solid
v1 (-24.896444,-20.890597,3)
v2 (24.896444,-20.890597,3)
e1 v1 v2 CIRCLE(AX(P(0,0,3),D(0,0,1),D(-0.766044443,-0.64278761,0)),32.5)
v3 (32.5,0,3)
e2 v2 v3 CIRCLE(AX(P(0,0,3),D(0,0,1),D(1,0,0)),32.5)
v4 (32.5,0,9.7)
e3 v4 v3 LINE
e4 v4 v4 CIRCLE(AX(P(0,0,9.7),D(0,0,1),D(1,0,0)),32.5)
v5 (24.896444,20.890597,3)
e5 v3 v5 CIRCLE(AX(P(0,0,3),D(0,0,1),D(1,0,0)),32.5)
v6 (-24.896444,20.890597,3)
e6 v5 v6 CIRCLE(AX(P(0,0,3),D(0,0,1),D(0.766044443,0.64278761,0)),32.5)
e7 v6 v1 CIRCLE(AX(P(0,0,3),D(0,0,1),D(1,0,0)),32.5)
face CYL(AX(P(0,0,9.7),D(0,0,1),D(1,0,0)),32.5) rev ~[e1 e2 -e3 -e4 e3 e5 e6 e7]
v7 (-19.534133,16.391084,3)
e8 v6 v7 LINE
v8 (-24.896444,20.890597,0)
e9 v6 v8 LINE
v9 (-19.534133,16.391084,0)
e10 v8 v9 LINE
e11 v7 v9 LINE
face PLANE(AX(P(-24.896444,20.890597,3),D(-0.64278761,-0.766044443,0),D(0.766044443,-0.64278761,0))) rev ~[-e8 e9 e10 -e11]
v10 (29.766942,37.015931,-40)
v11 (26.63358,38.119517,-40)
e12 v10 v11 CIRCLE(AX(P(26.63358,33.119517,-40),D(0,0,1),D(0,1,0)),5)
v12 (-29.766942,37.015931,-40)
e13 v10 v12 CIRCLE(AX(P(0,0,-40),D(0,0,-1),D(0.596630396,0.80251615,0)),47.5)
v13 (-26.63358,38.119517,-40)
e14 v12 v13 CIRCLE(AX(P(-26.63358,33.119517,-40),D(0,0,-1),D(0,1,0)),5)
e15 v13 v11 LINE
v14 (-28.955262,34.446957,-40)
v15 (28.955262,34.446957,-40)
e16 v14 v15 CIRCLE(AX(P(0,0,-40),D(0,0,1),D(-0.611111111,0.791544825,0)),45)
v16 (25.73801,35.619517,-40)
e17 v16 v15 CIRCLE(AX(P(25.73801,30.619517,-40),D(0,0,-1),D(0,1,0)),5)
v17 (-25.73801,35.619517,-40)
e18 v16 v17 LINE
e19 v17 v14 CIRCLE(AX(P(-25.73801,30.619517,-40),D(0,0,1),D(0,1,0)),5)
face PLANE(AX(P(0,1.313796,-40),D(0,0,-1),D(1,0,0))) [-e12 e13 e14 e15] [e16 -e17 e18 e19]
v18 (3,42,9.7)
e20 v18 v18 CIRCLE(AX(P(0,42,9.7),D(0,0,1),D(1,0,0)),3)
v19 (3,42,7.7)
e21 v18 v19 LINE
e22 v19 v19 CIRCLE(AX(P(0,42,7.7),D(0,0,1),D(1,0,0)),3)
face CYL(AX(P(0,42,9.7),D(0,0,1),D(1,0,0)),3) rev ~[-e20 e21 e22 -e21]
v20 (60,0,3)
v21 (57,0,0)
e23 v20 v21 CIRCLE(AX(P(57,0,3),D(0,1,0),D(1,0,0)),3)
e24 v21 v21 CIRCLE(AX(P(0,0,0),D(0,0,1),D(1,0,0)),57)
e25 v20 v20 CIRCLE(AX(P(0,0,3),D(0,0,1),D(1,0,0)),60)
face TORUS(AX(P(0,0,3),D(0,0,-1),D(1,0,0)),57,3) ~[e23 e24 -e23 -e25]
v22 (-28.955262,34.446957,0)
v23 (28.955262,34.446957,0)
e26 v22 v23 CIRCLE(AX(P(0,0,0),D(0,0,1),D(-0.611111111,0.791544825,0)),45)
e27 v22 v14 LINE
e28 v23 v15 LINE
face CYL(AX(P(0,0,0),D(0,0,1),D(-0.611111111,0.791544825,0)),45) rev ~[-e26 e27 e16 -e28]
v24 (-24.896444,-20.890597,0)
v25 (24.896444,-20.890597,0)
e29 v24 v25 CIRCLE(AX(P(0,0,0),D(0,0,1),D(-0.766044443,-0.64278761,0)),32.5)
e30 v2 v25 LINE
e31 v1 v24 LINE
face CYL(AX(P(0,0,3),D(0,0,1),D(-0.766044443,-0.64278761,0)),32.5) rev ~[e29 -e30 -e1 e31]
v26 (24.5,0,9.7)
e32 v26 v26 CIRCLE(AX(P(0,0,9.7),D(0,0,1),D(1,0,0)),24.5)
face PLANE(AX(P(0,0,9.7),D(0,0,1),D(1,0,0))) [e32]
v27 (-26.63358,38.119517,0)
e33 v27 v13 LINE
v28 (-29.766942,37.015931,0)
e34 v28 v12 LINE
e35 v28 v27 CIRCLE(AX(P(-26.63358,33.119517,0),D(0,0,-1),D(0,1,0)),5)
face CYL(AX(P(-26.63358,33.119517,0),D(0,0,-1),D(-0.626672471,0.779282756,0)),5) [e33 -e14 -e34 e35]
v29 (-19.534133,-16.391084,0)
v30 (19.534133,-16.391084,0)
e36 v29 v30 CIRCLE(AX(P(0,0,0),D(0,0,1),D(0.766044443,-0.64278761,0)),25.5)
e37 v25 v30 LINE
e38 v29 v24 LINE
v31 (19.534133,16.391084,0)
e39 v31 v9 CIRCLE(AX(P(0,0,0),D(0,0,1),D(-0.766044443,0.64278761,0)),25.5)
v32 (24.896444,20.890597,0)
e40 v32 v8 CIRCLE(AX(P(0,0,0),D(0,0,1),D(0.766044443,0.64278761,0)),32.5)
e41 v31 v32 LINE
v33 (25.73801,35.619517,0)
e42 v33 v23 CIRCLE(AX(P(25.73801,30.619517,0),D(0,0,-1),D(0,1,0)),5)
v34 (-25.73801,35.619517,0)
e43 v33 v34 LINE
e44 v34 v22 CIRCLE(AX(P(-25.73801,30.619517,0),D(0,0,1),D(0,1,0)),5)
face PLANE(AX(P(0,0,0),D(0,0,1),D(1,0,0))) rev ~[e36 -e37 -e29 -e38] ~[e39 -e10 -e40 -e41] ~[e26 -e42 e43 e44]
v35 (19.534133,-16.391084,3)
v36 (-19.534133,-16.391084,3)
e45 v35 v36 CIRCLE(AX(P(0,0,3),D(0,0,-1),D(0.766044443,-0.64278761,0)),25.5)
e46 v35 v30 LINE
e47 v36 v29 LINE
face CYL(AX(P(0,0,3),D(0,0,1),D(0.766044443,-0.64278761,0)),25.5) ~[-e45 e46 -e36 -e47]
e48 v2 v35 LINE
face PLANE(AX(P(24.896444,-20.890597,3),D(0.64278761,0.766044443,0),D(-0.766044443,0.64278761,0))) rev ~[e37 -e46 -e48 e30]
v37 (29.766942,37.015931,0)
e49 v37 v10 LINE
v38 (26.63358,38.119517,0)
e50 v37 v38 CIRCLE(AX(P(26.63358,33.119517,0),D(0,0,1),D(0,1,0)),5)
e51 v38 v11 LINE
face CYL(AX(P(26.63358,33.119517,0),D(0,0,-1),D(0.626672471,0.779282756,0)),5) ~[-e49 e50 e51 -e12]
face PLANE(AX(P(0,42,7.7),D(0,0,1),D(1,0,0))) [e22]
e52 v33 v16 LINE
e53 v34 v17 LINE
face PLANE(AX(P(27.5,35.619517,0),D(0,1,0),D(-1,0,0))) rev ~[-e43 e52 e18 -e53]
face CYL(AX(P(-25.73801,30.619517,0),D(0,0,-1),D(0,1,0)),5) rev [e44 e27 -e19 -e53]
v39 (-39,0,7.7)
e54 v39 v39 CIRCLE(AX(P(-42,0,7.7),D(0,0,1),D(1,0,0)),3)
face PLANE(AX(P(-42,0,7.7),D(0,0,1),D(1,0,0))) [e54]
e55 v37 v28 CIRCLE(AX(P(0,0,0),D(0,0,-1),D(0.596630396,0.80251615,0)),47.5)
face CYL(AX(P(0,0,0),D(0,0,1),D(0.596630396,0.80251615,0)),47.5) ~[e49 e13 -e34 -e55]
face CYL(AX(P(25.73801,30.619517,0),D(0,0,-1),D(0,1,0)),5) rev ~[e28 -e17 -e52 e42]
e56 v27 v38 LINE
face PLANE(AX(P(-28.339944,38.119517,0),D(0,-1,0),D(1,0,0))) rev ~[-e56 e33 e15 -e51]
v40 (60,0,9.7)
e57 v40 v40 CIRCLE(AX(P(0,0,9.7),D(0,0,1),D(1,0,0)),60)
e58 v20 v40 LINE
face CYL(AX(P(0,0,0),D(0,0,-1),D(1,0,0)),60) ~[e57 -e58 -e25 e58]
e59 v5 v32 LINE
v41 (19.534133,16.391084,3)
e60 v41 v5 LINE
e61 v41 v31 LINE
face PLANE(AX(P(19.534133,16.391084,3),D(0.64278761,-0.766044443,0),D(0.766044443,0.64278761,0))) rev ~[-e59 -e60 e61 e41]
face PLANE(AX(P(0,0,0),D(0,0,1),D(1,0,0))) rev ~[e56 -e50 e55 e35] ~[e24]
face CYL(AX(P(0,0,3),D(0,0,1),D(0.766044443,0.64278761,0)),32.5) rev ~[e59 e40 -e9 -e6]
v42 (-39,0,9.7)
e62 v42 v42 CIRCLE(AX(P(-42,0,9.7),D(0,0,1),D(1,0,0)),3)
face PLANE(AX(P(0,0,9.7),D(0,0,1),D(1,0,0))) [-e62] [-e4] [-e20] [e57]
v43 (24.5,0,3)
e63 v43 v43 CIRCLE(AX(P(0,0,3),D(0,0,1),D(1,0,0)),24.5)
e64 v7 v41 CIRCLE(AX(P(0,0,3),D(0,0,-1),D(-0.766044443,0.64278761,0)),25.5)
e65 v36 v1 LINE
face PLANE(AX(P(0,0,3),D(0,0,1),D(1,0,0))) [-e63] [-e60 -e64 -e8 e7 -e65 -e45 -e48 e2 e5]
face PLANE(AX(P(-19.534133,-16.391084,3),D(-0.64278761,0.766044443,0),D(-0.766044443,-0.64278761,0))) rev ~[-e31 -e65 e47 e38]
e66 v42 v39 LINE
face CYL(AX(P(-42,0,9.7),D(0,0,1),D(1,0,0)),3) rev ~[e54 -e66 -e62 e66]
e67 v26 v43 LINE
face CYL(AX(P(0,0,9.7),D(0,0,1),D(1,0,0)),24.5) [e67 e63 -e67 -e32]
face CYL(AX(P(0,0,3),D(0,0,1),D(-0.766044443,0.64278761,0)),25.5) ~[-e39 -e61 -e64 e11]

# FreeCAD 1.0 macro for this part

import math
import FreeCAD as App
import Part
import Sketcher
from FreeCAD import Vector
Q = App.Units.Quantity


def edges_at(feature, points):
    """Names of the edges that pass closest to the given points."""
    edges = feature.Shape.Edges
    near = lambda p: min(range(len(edges)), key=lambda i: edges[i].distToShape(Part.Vertex(*p))[0])
    return sorted({f"Edge{near(p) + 1}" for p in points})

doc = App.newDocument("Part")
body = doc.addObject("PartDesign::Body", "Body")

# Sketch on XY plane
sketch1 = doc.addObject("Sketcher::SketchObject", "Sketch")
body.addObject(sketch1)
sketch1.AttachmentSupport = (doc.XY_Plane, [""])
sketch1.MapMode = "FlatFace"
sketch1.addGeometry(Part.Circle(Vector(0, 0, 0), Vector(0, 0, 1), 60), False)
sketch1.addConstraint([
    Sketcher.Constraint("Coincident", 0, 3, -1, 1),
    Sketcher.Constraint("Diameter", 0, Q("120 mm")),
])
pad1 = doc.addObject("PartDesign::Pad", "Pad")
body.addObject(pad1)
pad1.Profile = sketch1
pad1.Length = 9.7

# Sketch on XY plane
sketch2 = doc.addObject("Sketcher::SketchObject", "Sketch001")
body.addObject(sketch2)
sketch2.AttachmentSupport = (doc.XY_Plane, [""])
sketch2.MapMode = "FlatFace"
sketch2.AttachmentOffset = App.Placement(Vector(0, 0, 9.7), App.Rotation())
sketch2.addGeometry([
    Part.Circle(Vector(0, 0, 0), Vector(0, 0, 1), 32),
    Part.Circle(Vector(0, 0, 0), Vector(0, 0, 1), 24),
], False)
sketch2.addConstraint([
    Sketcher.Constraint("Coincident", 0, 3, -1, 1),
    Sketcher.Constraint("Coincident", 1, 3, -1, 1),
    Sketcher.Constraint("Diameter", 0, Q("65 mm")),
    Sketcher.Constraint("Diameter", 1, Q("49 mm")),
])
pocket1 = doc.addObject("PartDesign::Pocket", "Pocket")
body.addObject(pocket1)
pocket1.Profile = sketch2
pocket1.Length = 6.7

# Sketch on XY plane
sketch3 = doc.addObject("Sketcher::SketchObject", "Sketch002")
body.addObject(sketch3)
sketch3.AttachmentSupport = (doc.XY_Plane, [""])
sketch3.MapMode = "FlatFace"
sketch3.AttachmentOffset = App.Placement(Vector(0, 0, 3), App.Rotation())
sketch3.addGeometry([
    Part.LineSegment(Vector(-20, -16, 0), Vector(-25, -21, 0)),  # 0
    Part.ArcOfCircle(Part.Circle(Vector(0, 0, 0), Vector(0, 0, 1), 32), math.radians(-140), math.radians(-40)),  # 1
    Part.LineSegment(Vector(25, -21, 0), Vector(20, -16, 0)),  # 2
    Part.ArcOfCircle(Part.Circle(Vector(0, 0, 0), Vector(0, 0, 1), 26), math.radians(-140), math.radians(-40)),  # 3
    Part.ArcOfCircle(Part.Circle(Vector(0, 0, 0), Vector(0, 0, 1), 26), math.radians(40), math.radians(140)),  # 4
    Part.LineSegment(Vector(20, 16, 0), Vector(25, 21, 0)),  # 5
    Part.ArcOfCircle(Part.Circle(Vector(0, 0, 0), Vector(0, 0, 1), 32), math.radians(40), math.radians(140)),  # 6
    Part.LineSegment(Vector(-25, 21, 0), Vector(-20, 16, 0)),  # 7
], False)
sketch3.addConstraint([
    Sketcher.Constraint("Coincident", 0, 2, 1, 1),
    Sketcher.Constraint("Coincident", 1, 2, 2, 1),
    Sketcher.Constraint("Coincident", 2, 2, 3, 2),
    Sketcher.Constraint("Coincident", 3, 1, 0, 1),
    Sketcher.Constraint("Coincident", 4, 1, 5, 1),
    Sketcher.Constraint("Coincident", 5, 2, 6, 1),
    Sketcher.Constraint("Coincident", 6, 2, 7, 1),
    Sketcher.Constraint("Coincident", 7, 2, 4, 2),
    Sketcher.Constraint("Coincident", 1, 3, -1, 1),
    Sketcher.Constraint("Coincident", 3, 3, -1, 1),
    Sketcher.Constraint("Coincident", 4, 3, -1, 1),
    Sketcher.Constraint("Coincident", 6, 3, -1, 1),
    Sketcher.Constraint("Equal", 3, 4),
    Sketcher.Constraint("Equal", 1, 6),
    Sketcher.Constraint("Parallel", 0, 5),
    Sketcher.Constraint("Parallel", 2, 7),
    Sketcher.Constraint("Horizontal", 0, 2, 1, 2),
    Sketcher.Constraint("Horizontal", 2, 2, 3, 1),
    Sketcher.Constraint("Horizontal", 5, 2, 6, 2),
    Sketcher.Constraint("Vertical", 2, 2, 4, 1),
    Sketcher.Constraint("Radius", 1, Q("32.5 mm")),
    Sketcher.Constraint("Radius", 3, Q("25.5 mm")),
    Sketcher.Constraint("Angle", 0, Q("-140 deg")),
    Sketcher.Constraint("DistanceX", 0, 2, 1, 2, Q("49.792889 mm")),
])
pocket2 = doc.addObject("PartDesign::Pocket", "Pocket001")
body.addObject(pocket2)
pocket2.Profile = sketch3
pocket2.Type = "ThroughAll"

# Sketch on XY plane
sketch4 = doc.addObject("Sketcher::SketchObject", "Sketch003")
body.addObject(sketch4)
sketch4.AttachmentSupport = (doc.XY_Plane, [""])
sketch4.MapMode = "FlatFace"
sketch4.AttachmentOffset = App.Placement(Vector(0, 0, 9.7), App.Rotation())
sketch4.addGeometry([
    Part.Circle(Vector(0, 42, 0), Vector(0, 0, 1), 3),
    Part.Circle(Vector(-42, 0, 0), Vector(0, 0, 1), 3),
], False)
sketch4.addConstraint([
    Sketcher.Constraint("Equal", 0, 1),
    Sketcher.Constraint("PointOnObject", 0, 3, -2),
    Sketcher.Constraint("PointOnObject", 1, 3, -1),
    Sketcher.Constraint("Diameter", 0, Q("6 mm")),
    Sketcher.Constraint("DistanceY", -1, 1, 0, 3, Q("42 mm")),
    Sketcher.Constraint("DistanceX", 1, 3, -1, 1, Q("42 mm")),
])
pocket3 = doc.addObject("PartDesign::Pocket", "Pocket002")
body.addObject(pocket3)
pocket3.Profile = sketch4
pocket3.Length = 2

# Sketch on XY plane
sketch5 = doc.addObject("Sketcher::SketchObject", "Sketch004")
body.addObject(sketch5)
sketch5.AttachmentSupport = (doc.XY_Plane, [""])
sketch5.MapMode = "FlatFace"
sketch5.addGeometry([
    Part.LineSegment(Vector(-28, 38, 0), Vector(28, 38, 0)),
    Part.ArcOfCircle(Part.Circle(Vector(0, 0, 0), Vector(0, 0, 1), 48), math.radians(127), math.radians(413)),
    Part.LineSegment(Vector(28, 36, 0), Vector(-28, 36, 0)),
    Part.ArcOfCircle(Part.Circle(Vector(0, 0, 0), Vector(0, 0, 1), 45), math.radians(128), math.radians(412)),
], False)
sketch5.addConstraint([
    Sketcher.Constraint("Coincident", 0, 1, 1, 1),
    Sketcher.Constraint("Coincident", 1, 2, 0, 2),
    Sketcher.Constraint("Coincident", 2, 1, 3, 2),
    Sketcher.Constraint("Coincident", 3, 1, 2, 2),
    Sketcher.Constraint("Horizontal", 0),
    Sketcher.Constraint("Horizontal", 2),
    Sketcher.Constraint("Coincident", 1, 3, -1, 1),
    Sketcher.Constraint("Coincident", 3, 3, -1, 1),
    Sketcher.Constraint("Radius", 3, Q("45 mm")),
    Sketcher.Constraint("Radius", 1, Q("47.5 mm")),
    Sketcher.Constraint("DistanceX", 2, 2, 2, 1, Q("55 mm")),
    Sketcher.Constraint("DistanceY", 2, 1, 1, 2, Q("2.5 mm")),
])
pad2 = doc.addObject("PartDesign::Pad", "Pad001")
body.addObject(pad2)
pad2.Profile = sketch5
pad2.Length = 40
pad2.Reversed = True
doc.recompute()

fillet = doc.addObject("PartDesign::Fillet", "Fillet")
body.addObject(fillet)
fillet.Base = (pad2, edges_at(pad2, [(-60, 0, 0)]))
fillet.Radius = 3
doc.recompute()

fillet2 = doc.addObject("PartDesign::Fillet", "Fillet001")
body.addObject(fillet2)
fillet2.Base = (fillet, edges_at(fillet, [
    (27.5, 35.62, -20),
    (-27.5, 35.62, -20),
    (-28.34, 38.12, -20),
    (28.34, 38.12, -20),
]))
fillet2.Radius = 5

doc.recompute()
